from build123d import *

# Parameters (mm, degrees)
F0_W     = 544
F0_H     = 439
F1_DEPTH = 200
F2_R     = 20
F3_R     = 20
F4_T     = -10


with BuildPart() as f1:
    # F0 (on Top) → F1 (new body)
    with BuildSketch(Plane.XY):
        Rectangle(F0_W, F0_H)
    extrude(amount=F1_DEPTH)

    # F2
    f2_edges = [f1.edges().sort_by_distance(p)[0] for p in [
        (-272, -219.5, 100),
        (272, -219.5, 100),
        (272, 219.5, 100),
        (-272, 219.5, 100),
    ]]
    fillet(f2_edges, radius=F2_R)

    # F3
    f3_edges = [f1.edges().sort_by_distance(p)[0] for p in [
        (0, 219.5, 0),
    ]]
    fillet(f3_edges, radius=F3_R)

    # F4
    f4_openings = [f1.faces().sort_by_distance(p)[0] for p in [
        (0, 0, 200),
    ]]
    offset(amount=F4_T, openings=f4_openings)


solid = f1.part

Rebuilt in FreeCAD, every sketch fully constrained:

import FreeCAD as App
import Part
import Sketcher


def edges_at(feature, points):
    """Names of the edges that pass closest to the given points."""
    edges = feature.Shape.Edges
    near = lambda p: min(range(len(edges)), key=lambda i: edges[i].distToShape(Part.Vertex(*p))[0])
    return sorted({f"Edge{near(p) + 1}" for p in points})


def faces_at(feature, points):
    """Names of the faces that lie closest to the given points."""
    faces = feature.Shape.Faces
    near = lambda p: min(range(len(faces)), key=lambda i: faces[i].distToShape(Part.Vertex(*p))[0])
    return sorted({f"Face{near(p) + 1}" for p in points})


def add_polygon(sketch, points):
    """Adds a closed chain of lines whose ends are joined by coincident constraints."""
    first, n = sketch.GeometryCount, len(points)
    for a, b in zip(points, points[1:] + points[:1]):
        sketch.addGeometry(Part.LineSegment(App.Vector(*a, 0), App.Vector(*b, 0)), False)
    for i in range(n):
        sketch.addConstraint(Sketcher.Constraint("Coincident", first + i, 2, first + (i + 1) % n, 1))

doc = App.newDocument("Part")
body = doc.addObject("PartDesign::Body", "Body")

# Sketch on XY plane
sketch1 = body.newObject("Sketcher::SketchObject", "Sketch")
sketch1.AttachmentSupport = (doc.getObject("XY_Plane"), [""])
sketch1.MapMode = "FlatFace"
add_polygon(sketch1, [(-272, 220), (-272, -220), (272, -220), (272, 220)])  # lines 0-3
sketch1.addConstraint([
    Sketcher.Constraint("Vertical", 0),
    Sketcher.Constraint("Horizontal", 1),
    Sketcher.Constraint("Vertical", 2),
    Sketcher.Constraint("Horizontal", 3),
    Sketcher.Constraint("Symmetric", 0, 2, 2, 2, -1, 1),
    Sketcher.Constraint("DistanceX", 1, 1, 1, 2, 544.0),
    Sketcher.Constraint("DistanceY", 0, 2, 0, 1, 439.0),
])
pad1 = body.newObject("PartDesign::Pad", "Pad")
pad1.Profile = sketch1
pad1.Length = 200
doc.recompute()

fillet = body.newObject("PartDesign::Fillet", "Fillet")
fillet.Base = (pad1, edges_at(pad1, [
    (-272, -219.5, 100),
    (272, -219.5, 100),
    (272, 219.5, 100),
    (-272, 219.5, 100),
]))
fillet.Radius = 20
doc.recompute()

fillet2 = body.newObject("PartDesign::Fillet", "Fillet001")
fillet2.Base = (fillet, edges_at(fillet, [(0, 219.5, 0)]))
fillet2.Radius = 20
doc.recompute()

thickness = body.newObject("PartDesign::Thickness", "Thickness")
thickness.Base = (fillet2, faces_at(fillet2, [(0, 0, 200)]))
thickness.Value = 10
thickness.Reversed = True
thickness.Join = "Arc"

doc.recompute()
